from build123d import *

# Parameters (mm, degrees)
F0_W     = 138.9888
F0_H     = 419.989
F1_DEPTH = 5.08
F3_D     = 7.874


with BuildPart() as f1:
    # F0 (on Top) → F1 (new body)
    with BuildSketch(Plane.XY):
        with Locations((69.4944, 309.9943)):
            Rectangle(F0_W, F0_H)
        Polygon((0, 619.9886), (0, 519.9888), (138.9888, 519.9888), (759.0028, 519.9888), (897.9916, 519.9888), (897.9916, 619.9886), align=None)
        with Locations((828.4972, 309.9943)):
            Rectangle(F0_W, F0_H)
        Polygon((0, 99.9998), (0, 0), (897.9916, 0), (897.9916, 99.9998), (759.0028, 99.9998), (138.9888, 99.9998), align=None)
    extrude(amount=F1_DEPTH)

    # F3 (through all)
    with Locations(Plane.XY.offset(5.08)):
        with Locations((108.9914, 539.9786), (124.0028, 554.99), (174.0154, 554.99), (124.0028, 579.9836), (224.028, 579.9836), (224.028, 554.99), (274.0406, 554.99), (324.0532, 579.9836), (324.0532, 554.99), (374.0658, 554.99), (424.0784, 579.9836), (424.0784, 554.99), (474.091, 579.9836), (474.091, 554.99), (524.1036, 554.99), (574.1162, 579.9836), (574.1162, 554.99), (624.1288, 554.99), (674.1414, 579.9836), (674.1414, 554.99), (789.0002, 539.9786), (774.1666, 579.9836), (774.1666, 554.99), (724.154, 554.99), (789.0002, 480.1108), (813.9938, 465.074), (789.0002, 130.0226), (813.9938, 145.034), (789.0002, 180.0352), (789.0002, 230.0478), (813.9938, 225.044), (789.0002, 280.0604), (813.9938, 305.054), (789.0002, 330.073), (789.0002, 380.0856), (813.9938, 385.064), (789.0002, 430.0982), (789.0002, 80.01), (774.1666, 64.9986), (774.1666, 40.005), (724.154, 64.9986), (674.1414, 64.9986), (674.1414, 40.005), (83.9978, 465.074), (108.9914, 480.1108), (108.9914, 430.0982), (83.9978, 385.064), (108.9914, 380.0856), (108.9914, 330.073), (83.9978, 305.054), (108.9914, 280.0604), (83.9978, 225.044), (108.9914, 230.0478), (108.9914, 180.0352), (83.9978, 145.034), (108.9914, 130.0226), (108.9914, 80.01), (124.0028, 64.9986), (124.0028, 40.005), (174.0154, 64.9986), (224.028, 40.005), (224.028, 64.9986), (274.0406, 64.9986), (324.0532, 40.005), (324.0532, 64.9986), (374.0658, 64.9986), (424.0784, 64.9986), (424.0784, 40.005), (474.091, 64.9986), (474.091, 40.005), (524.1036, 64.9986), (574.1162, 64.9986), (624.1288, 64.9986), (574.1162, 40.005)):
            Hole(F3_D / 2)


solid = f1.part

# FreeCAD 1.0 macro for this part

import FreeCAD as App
import Part
import Sketcher
Q = App.Units.Quantity

doc = App.newDocument("Part")
body = doc.addObject("PartDesign::Body", "Body")

# Sketch on XY plane
sketch1 = body.newObject("Sketcher::SketchObject", "Sketch")
sketch1.AttachmentSupport = (doc.getObject("XY_Plane"), [""])
sketch1.MapMode = "FlatFace"
sketch1.addGeometry([
    Part.LineSegment(App.Vector(898, 620, 0), App.Vector(0, 620, 0)),  # 0
    Part.LineSegment(App.Vector(0, 620, 0), App.Vector(0, 0, 0)),  # 1
    Part.LineSegment(App.Vector(0, 0, 0), App.Vector(898, 0, 0)),  # 2
    Part.LineSegment(App.Vector(898, 0, 0), App.Vector(898, 620, 0)),  # 3
    Part.LineSegment(App.Vector(139, 100, 0), App.Vector(139, 520, 0)),  # 4
    Part.LineSegment(App.Vector(139, 520, 0), App.Vector(759, 520, 0)),  # 5
    Part.LineSegment(App.Vector(759, 520, 0), App.Vector(759, 100, 0)),  # 6
    Part.LineSegment(App.Vector(759, 100, 0), App.Vector(139, 100, 0)),  # 7
], False)
sketch1.addConstraint([
    Sketcher.Constraint("Coincident", 0, 2, 1, 1),
    Sketcher.Constraint("Coincident", 1, 2, 2, 1),
    Sketcher.Constraint("Coincident", 2, 2, 3, 1),
    Sketcher.Constraint("Coincident", 3, 2, 0, 1),
    Sketcher.Constraint("Coincident", 4, 2, 5, 1),
    Sketcher.Constraint("Coincident", 5, 2, 6, 1),
    Sketcher.Constraint("Coincident", 6, 2, 7, 1),
    Sketcher.Constraint("Coincident", 7, 2, 4, 1),
    Sketcher.Constraint("Horizontal", 0),
    Sketcher.Constraint("Vertical", 1),
    Sketcher.Constraint("Horizontal", 2),
    Sketcher.Constraint("Vertical", 3),
    Sketcher.Constraint("Vertical", 4),
    Sketcher.Constraint("Horizontal", 5),
    Sketcher.Constraint("Vertical", 6),
    Sketcher.Constraint("Horizontal", 7),
    Sketcher.Constraint("Coincident", 1, 2, -1, 1),
    Sketcher.Constraint("DistanceX", 5, 1, 5, 2, Q("24.41 in")),
    Sketcher.Constraint("DistanceX", 0, 2, 0, 1, Q("35.354 in")),
    Sketcher.Constraint("DistanceY", 1, 2, 1, 1, Q("24.409 in")),
    Sketcher.Constraint("DistanceY", 4, 1, 4, 2, Q("16.535 in")),
    Sketcher.Constraint("DistanceX", -1, 1, 4, 2, Q("5.472 in")),
    Sketcher.Constraint("DistanceY", -1, 1, 4, 2, Q("20.472 in")),
])
pad1 = body.newObject("PartDesign::Pad", "Pad")
pad1.Profile = sketch1
pad1.Length = Q("0.2 in")

# Sketch on XY plane
sketch2 = body.newObject("Sketcher::SketchObject", "Sketch001")
sketch2.AttachmentSupport = (doc.getObject("XY_Plane"), [""])
sketch2.MapMode = "FlatFace"
sketch2.AttachmentOffset = App.Placement(App.Vector(0, 0, 0.2 * 25.4), App.Rotation())
sketch2.addGeometry([
    Part.Circle(App.Vector(109, 540, 0), App.Vector(0, 0, 1), 3.9),  # 0
    Part.Circle(App.Vector(124, 555, 0), App.Vector(0, 0, 1), 3.9),  # 1
    Part.Circle(App.Vector(174, 555, 0), App.Vector(0, 0, 1), 3.9),  # 2
    Part.Circle(App.Vector(124, 580, 0), App.Vector(0, 0, 1), 3.9),  # 3
    Part.Circle(App.Vector(224, 580, 0), App.Vector(0, 0, 1), 3.9),  # 4
    Part.Circle(App.Vector(224, 555, 0), App.Vector(0, 0, 1), 3.9),  # 5
    Part.Circle(App.Vector(274, 555, 0), App.Vector(0, 0, 1), 3.9),  # 6
    Part.Circle(App.Vector(324.1, 580, 0), App.Vector(0, 0, 1), 3.9),  # 7
    Part.Circle(App.Vector(324.1, 555, 0), App.Vector(0, 0, 1), 3.9),  # 8
    Part.Circle(App.Vector(374.1, 555, 0), App.Vector(0, 0, 1), 3.9),  # 9
    Part.Circle(App.Vector(424.1, 580, 0), App.Vector(0, 0, 1), 3.9),  # 10
    Part.Circle(App.Vector(424.1, 555, 0), App.Vector(0, 0, 1), 3.9),  # 11
    Part.Circle(App.Vector(474.1, 580, 0), App.Vector(0, 0, 1), 3.9),  # 12
    Part.Circle(App.Vector(474.1, 555, 0), App.Vector(0, 0, 1), 3.9),  # 13
    Part.Circle(App.Vector(524.1, 555, 0), App.Vector(0, 0, 1), 3.9),  # 14
    Part.Circle(App.Vector(574.1, 580, 0), App.Vector(0, 0, 1), 3.9),  # 15
    Part.Circle(App.Vector(574.1, 555, 0), App.Vector(0, 0, 1), 3.9),  # 16
    Part.Circle(App.Vector(624.1, 555, 0), App.Vector(0, 0, 1), 3.9),  # 17
    Part.Circle(App.Vector(674.1, 580, 0), App.Vector(0, 0, 1), 3.9),  # 18
    Part.Circle(App.Vector(674.1, 555, 0), App.Vector(0, 0, 1), 3.9),  # 19
    Part.Circle(App.Vector(789, 540, 0), App.Vector(0, 0, 1), 3.9),  # 20
    Part.Circle(App.Vector(774.2, 580, 0), App.Vector(0, 0, 1), 3.9),  # 21
    Part.Circle(App.Vector(774.2, 555, 0), App.Vector(0, 0, 1), 3.9),  # 22
    Part.Circle(App.Vector(724.2, 555, 0), App.Vector(0, 0, 1), 3.9),  # 23
    Part.Circle(App.Vector(789, 480.1, 0), App.Vector(0, 0, 1), 3.9),  # 24
    Part.Circle(App.Vector(814, 465.1, 0), App.Vector(0, 0, 1), 3.9),  # 25
    Part.Circle(App.Vector(789, 130, 0), App.Vector(0, 0, 1), 3.9),  # 26
    Part.Circle(App.Vector(814, 145, 0), App.Vector(0, 0, 1), 3.9),  # 27
    Part.Circle(App.Vector(789, 180, 0), App.Vector(0, 0, 1), 3.9),  # 28
    Part.Circle(App.Vector(789, 230, 0), App.Vector(0, 0, 1), 3.9),  # 29
    Part.Circle(App.Vector(814, 225, 0), App.Vector(0, 0, 1), 3.9),  # 30
    Part.Circle(App.Vector(789, 280.1, 0), App.Vector(0, 0, 1), 3.9),  # 31
    Part.Circle(App.Vector(814, 305.1, 0), App.Vector(0, 0, 1), 3.9),  # 32
    Part.Circle(App.Vector(789, 330.1, 0), App.Vector(0, 0, 1), 3.9),  # 33
    Part.Circle(App.Vector(789, 380.1, 0), App.Vector(0, 0, 1), 3.9),  # 34
    Part.Circle(App.Vector(814, 385.1, 0), App.Vector(0, 0, 1), 3.9),  # 35
    Part.Circle(App.Vector(789, 430.1, 0), App.Vector(0, 0, 1), 3.9),  # 36
    Part.Circle(App.Vector(789, 80, 0), App.Vector(0, 0, 1), 3.9),  # 37
    Part.Circle(App.Vector(774.2, 65, 0), App.Vector(0, 0, 1), 3.9),  # 38
    Part.Circle(App.Vector(774.2, 40, 0), App.Vector(0, 0, 1), 3.9),  # 39
    Part.Circle(App.Vector(724.2, 65, 0), App.Vector(0, 0, 1), 3.9),  # 40
    Part.Circle(App.Vector(674.1, 65, 0), App.Vector(0, 0, 1), 3.9),  # 41
    Part.Circle(App.Vector(674.1, 40, 0), App.Vector(0, 0, 1), 3.9),  # 42
    Part.Circle(App.Vector(84, 465.1, 0), App.Vector(0, 0, 1), 3.9),  # 43
    Part.Circle(App.Vector(109, 480.1, 0), App.Vector(0, 0, 1), 3.9),  # 44
    Part.Circle(App.Vector(109, 430.1, 0), App.Vector(0, 0, 1), 3.9),  # 45
    Part.Circle(App.Vector(84, 385.1, 0), App.Vector(0, 0, 1), 3.9),  # 46
    Part.Circle(App.Vector(109, 380.1, 0), App.Vector(0, 0, 1), 3.9),  # 47
    Part.Circle(App.Vector(109, 330.1, 0), App.Vector(0, 0, 1), 3.9),  # 48
    Part.Circle(App.Vector(84, 305.1, 0), App.Vector(0, 0, 1), 3.9),  # 49
    Part.Circle(App.Vector(109, 280.1, 0), App.Vector(0, 0, 1), 3.9),  # 50
    Part.Circle(App.Vector(84, 225, 0), App.Vector(0, 0, 1), 3.9),  # 51
    Part.Circle(App.Vector(109, 230, 0), App.Vector(0, 0, 1), 3.9),  # 52
    Part.Circle(App.Vector(109, 180, 0), App.Vector(0, 0, 1), 3.9),  # 53
    Part.Circle(App.Vector(84, 145, 0), App.Vector(0, 0, 1), 3.9),  # 54
    Part.Circle(App.Vector(109, 130, 0), App.Vector(0, 0, 1), 3.9),  # 55
    Part.Circle(App.Vector(109, 80, 0), App.Vector(0, 0, 1), 3.9),  # 56
    Part.Circle(App.Vector(124, 65, 0), App.Vector(0, 0, 1), 3.9),  # 57
    Part.Circle(App.Vector(124, 40, 0), App.Vector(0, 0, 1), 3.9),  # 58
    Part.Circle(App.Vector(174, 65, 0), App.Vector(0, 0, 1), 3.9),  # 59
    Part.Circle(App.Vector(224, 40, 0), App.Vector(0, 0, 1), 3.9),  # 60
    Part.Circle(App.Vector(224, 65, 0), App.Vector(0, 0, 1), 3.9),  # 61
    Part.Circle(App.Vector(274, 65, 0), App.Vector(0, 0, 1), 3.9),  # 62
    Part.Circle(App.Vector(324.1, 40, 0), App.Vector(0, 0, 1), 3.9),  # 63
    Part.Circle(App.Vector(324.1, 65, 0), App.Vector(0, 0, 1), 3.9),  # 64
    Part.Circle(App.Vector(374.1, 65, 0), App.Vector(0, 0, 1), 3.9),  # 65
    Part.Circle(App.Vector(424.1, 65, 0), App.Vector(0, 0, 1), 3.9),  # 66
    Part.Circle(App.Vector(424.1, 40, 0), App.Vector(0, 0, 1), 3.9),  # 67
    Part.Circle(App.Vector(474.1, 65, 0), App.Vector(0, 0, 1), 3.9),  # 68
    Part.Circle(App.Vector(474.1, 40, 0), App.Vector(0, 0, 1), 3.9),  # 69
    Part.Circle(App.Vector(524.1, 65, 0), App.Vector(0, 0, 1), 3.9),  # 70
    Part.Circle(App.Vector(574.1, 65, 0), App.Vector(0, 0, 1), 3.9),  # 71
    Part.Circle(App.Vector(624.1, 65, 0), App.Vector(0, 0, 1), 3.9),  # 72
    Part.Circle(App.Vector(574.1, 40, 0), App.Vector(0, 0, 1), 3.9),  # 73
], False)
sketch2.addConstraint([
    Sketcher.Constraint("Equal", 0, 1),
    Sketcher.Constraint("Equal", 1, 2),
    Sketcher.Constraint("Equal", 2, 3),
    Sketcher.Constraint("Equal", 3, 4),
    Sketcher.Constraint("Equal", 4, 5),
    Sketcher.Constraint("Equal", 5, 6),
    Sketcher.Constraint("Equal", 6, 7),
    Sketcher.Constraint("Equal", 7, 8),
    Sketcher.Constraint("Equal", 8, 9),
    Sketcher.Constraint("Equal", 9, 10),
    Sketcher.Constraint("Equal", 10, 11),
    Sketcher.Constraint("Equal", 11, 12),
    Sketcher.Constraint("Equal", 12, 13),
    Sketcher.Constraint("Equal", 13, 14),
    Sketcher.Constraint("Equal", 14, 15),
    Sketcher.Constraint("Equal", 15, 16),
    Sketcher.Constraint("Equal", 16, 17),
    Sketcher.Constraint("Equal", 17, 18),
    Sketcher.Constraint("Equal", 18, 19),
    Sketcher.Constraint("Equal", 19, 20),
    Sketcher.Constraint("Equal", 20, 21),
    Sketcher.Constraint("Equal", 21, 22),
    Sketcher.Constraint("Equal", 22, 23),
    Sketcher.Constraint("Equal", 23, 24),
    Sketcher.Constraint("Equal", 24, 25),
    Sketcher.Constraint("Equal", 25, 26),
    Sketcher.Constraint("Equal", 26, 27),
    Sketcher.Constraint("Equal", 27, 28),
    Sketcher.Constraint("Equal", 28, 29),
    Sketcher.Constraint("Equal", 29, 30),
    Sketcher.Constraint("Equal", 30, 31),
    Sketcher.Constraint("Equal", 31, 32),
    Sketcher.Constraint("Equal", 32, 33),
    Sketcher.Constraint("Equal", 33, 34),
    Sketcher.Constraint("Equal", 34, 35),
    Sketcher.Constraint("Equal", 35, 36),
    Sketcher.Constraint("Equal", 36, 37),
    Sketcher.Constraint("Equal", 37, 38),
    Sketcher.Constraint("Equal", 38, 39),
    Sketcher.Constraint("Equal", 39, 40),
    Sketcher.Constraint("Equal", 40, 41),
    Sketcher.Constraint("Equal", 41, 42),
    Sketcher.Constraint("Equal", 42, 43),
    Sketcher.Constraint("Equal", 43, 44),
    Sketcher.Constraint("Equal", 44, 45),
    Sketcher.Constraint("Equal", 45, 46),
    Sketcher.Constraint("Equal", 46, 47),
    Sketcher.Constraint("Equal", 47, 48),
    Sketcher.Constraint("Equal", 48, 49),
    Sketcher.Constraint("Equal", 49, 50),
    Sketcher.Constraint("Equal", 50, 51),
    Sketcher.Constraint("Equal", 51, 52),
    Sketcher.Constraint("Equal", 52, 53),
    Sketcher.Constraint("Equal", 53, 54),
    Sketcher.Constraint("Equal", 54, 55),
    Sketcher.Constraint("Equal", 55, 56),
    Sketcher.Constraint("Equal", 56, 57),
    Sketcher.Constraint("Equal", 57, 58),
    Sketcher.Constraint("Equal", 58, 59),
    Sketcher.Constraint("Equal", 59, 60),
    Sketcher.Constraint("Equal", 60, 61),
    Sketcher.Constraint("Equal", 61, 62),
    Sketcher.Constraint("Equal", 62, 63),
    Sketcher.Constraint("Equal", 63, 64),
    Sketcher.Constraint("Equal", 64, 65),
    Sketcher.Constraint("Equal", 65, 66),
    Sketcher.Constraint("Equal", 66, 67),
    Sketcher.Constraint("Equal", 67, 68),
    Sketcher.Constraint("Equal", 68, 69),
    Sketcher.Constraint("Equal", 69, 70),
    Sketcher.Constraint("Equal", 70, 71),
    Sketcher.Constraint("Equal", 71, 72),
    Sketcher.Constraint("Equal", 72, 73),
    Sketcher.Constraint("Horizontal", 1, 3, 2, 3),
    Sketcher.Constraint("Horizontal", 3, 3, 4, 3),
    Sketcher.Constraint("Horizontal", 2, 3, 5, 3),
    Sketcher.Constraint("Horizontal", 5, 3, 6, 3),
    Sketcher.Constraint("Horizontal", 4, 3, 7, 3),
    Sketcher.Constraint("Horizontal", 6, 3, 8, 3),
    Sketcher.Constraint("Horizontal", 8, 3, 9, 3),
    Sketcher.Constraint("Horizontal", 7, 3, 10, 3),
    Sketcher.Constraint("Horizontal", 9, 3, 11, 3),
    Sketcher.Constraint("Horizontal", 10, 3, 12, 3),
    Sketcher.Constraint("Horizontal", 11, 3, 13, 3),
    Sketcher.Constraint("Horizontal", 13, 3, 14, 3),
    Sketcher.Constraint("Horizontal", 12, 3, 15, 3),
    Sketcher.Constraint("Horizontal", 14, 3, 16, 3),
    Sketcher.Constraint("Horizontal", 16, 3, 17, 3),
    Sketcher.Constraint("Horizontal", 15, 3, 18, 3),
    Sketcher.Constraint("Horizontal", 17, 3, 19, 3),
    Sketcher.Constraint("Horizontal", 0, 3, 20, 3),
    Sketcher.Constraint("Horizontal", 18, 3, 21, 3),
    Sketcher.Constraint("Horizontal", 19, 3, 22, 3),
    Sketcher.Constraint("Horizontal", 22, 3, 23, 3),
    Sketcher.Constraint("Horizontal", 38, 3, 40, 3),
    Sketcher.Constraint("Horizontal", 40, 3, 41, 3),
    Sketcher.Constraint("Horizontal", 39, 3, 42, 3),
    Sketcher.Constraint("Horizontal", 25, 3, 43, 3),
    Sketcher.Constraint("Horizontal", 24, 3, 44, 3),
    Sketcher.Constraint("Horizontal", 36, 3, 45, 3),
    Sketcher.Constraint("Horizontal", 35, 3, 46, 3),
    Sketcher.Constraint("Horizontal", 34, 3, 47, 3),
    Sketcher.Constraint("Horizontal", 33, 3, 48, 3),
    Sketcher.Constraint("Horizontal", 32, 3, 49, 3),
    Sketcher.Constraint("Horizontal", 31, 3, 50, 3),
    Sketcher.Constraint("Horizontal", 30, 3, 51, 3),
    Sketcher.Constraint("Horizontal", 29, 3, 52, 3),
    Sketcher.Constraint("Horizontal", 28, 3, 53, 3),
    Sketcher.Constraint("Horizontal", 27, 3, 54, 3),
    Sketcher.Constraint("Horizontal", 26, 3, 55, 3),
    Sketcher.Constraint("Horizontal", 37, 3, 56, 3),
    Sketcher.Constraint("Horizontal", 41, 3, 57, 3),
    Sketcher.Constraint("Horizontal", 42, 3, 58, 3),
    Sketcher.Constraint("Horizontal", 57, 3, 59, 3),
    Sketcher.Constraint("Horizontal", 58, 3, 60, 3),
    Sketcher.Constraint("Horizontal", 59, 3, 61, 3),
    Sketcher.Constraint("Horizontal", 61, 3, 62, 3),
    Sketcher.Constraint("Horizontal", 60, 3, 63, 3),
    Sketcher.Constraint("Horizontal", 62, 3, 64, 3),
    Sketcher.Constraint("Horizontal", 64, 3, 65, 3),
    Sketcher.Constraint("Horizontal", 65, 3, 66, 3),
    Sketcher.Constraint("Horizontal", 63, 3, 67, 3),
    Sketcher.Constraint("Horizontal", 66, 3, 68, 3),
    Sketcher.Constraint("Horizontal", 67, 3, 69, 3),
    Sketcher.Constraint("Horizontal", 68, 3, 70, 3),
    Sketcher.Constraint("Horizontal", 70, 3, 71, 3),
    Sketcher.Constraint("Horizontal", 71, 3, 72, 3),
    Sketcher.Constraint("Horizontal", 69, 3, 73, 3),
    Sketcher.Constraint("Vertical", 1, 3, 3, 3),
    Sketcher.Constraint("Vertical", 4, 3, 5, 3),
    Sketcher.Constraint("Vertical", 7, 3, 8, 3),
    Sketcher.Constraint("Vertical", 10, 3, 11, 3),
    Sketcher.Constraint("Vertical", 12, 3, 13, 3),
    Sketcher.Constraint("Vertical", 15, 3, 16, 3),
    Sketcher.Constraint("Vertical", 18, 3, 19, 3),
    Sketcher.Constraint("Vertical", 21, 3, 22, 3),
    Sketcher.Constraint("Vertical", 20, 3, 24, 3),
    Sketcher.Constraint("Vertical", 24, 3, 26, 3),
    Sketcher.Constraint("Vertical", 25, 3, 27, 3),
    Sketcher.Constraint("Vertical", 26, 3, 28, 3),
    Sketcher.Constraint("Vertical", 28, 3, 29, 3),
    Sketcher.Constraint("Vertical", 27, 3, 30, 3),
    Sketcher.Constraint("Vertical", 29, 3, 31, 3),
    Sketcher.Constraint("Vertical", 30, 3, 32, 3),
    Sketcher.Constraint("Vertical", 31, 3, 33, 3),
    Sketcher.Constraint("Vertical", 33, 3, 34, 3),
    Sketcher.Constraint("Vertical", 32, 3, 35, 3),
    Sketcher.Constraint("Vertical", 34, 3, 36, 3),
    Sketcher.Constraint("Vertical", 36, 3, 37, 3),
    Sketcher.Constraint("Vertical", 22, 3, 38, 3),
    Sketcher.Constraint("Vertical", 38, 3, 39, 3),
    Sketcher.Constraint("Vertical", 23, 3, 40, 3),
    Sketcher.Constraint("Vertical", 19, 3, 41, 3),
    Sketcher.Constraint("Vertical", 41, 3, 42, 3),
    Sketcher.Constraint("Vertical", 0, 3, 44, 3),
    Sketcher.Constraint("Vertical", 44, 3, 45, 3),
    Sketcher.Constraint("Vertical", 43, 3, 46, 3),
    Sketcher.Constraint("Vertical", 45, 3, 47, 3),
    Sketcher.Constraint("Vertical", 47, 3, 48, 3),
    Sketcher.Constraint("Vertical", 46, 3, 49, 3),
    Sketcher.Constraint("Vertical", 48, 3, 50, 3),
    Sketcher.Constraint("Vertical", 49, 3, 51, 3),
    Sketcher.Constraint("Vertical", 50, 3, 52, 3),
    Sketcher.Constraint("Vertical", 52, 3, 53, 3),
    Sketcher.Constraint("Vertical", 51, 3, 54, 3),
    Sketcher.Constraint("Vertical", 53, 3, 55, 3),
    Sketcher.Constraint("Vertical", 55, 3, 56, 3),
    Sketcher.Constraint("Vertical", 3, 3, 57, 3),
    Sketcher.Constraint("Vertical", 57, 3, 58, 3),
    Sketcher.Constraint("Vertical", 2, 3, 59, 3),
    Sketcher.Constraint("Vertical", 5, 3, 60, 3),
    Sketcher.Constraint("Vertical", 60, 3, 61, 3),
    Sketcher.Constraint("Vertical", 6, 3, 62, 3),
    Sketcher.Constraint("Vertical", 8, 3, 63, 3),
    Sketcher.Constraint("Vertical", 63, 3, 64, 3),
    Sketcher.Constraint("Vertical", 9, 3, 65, 3),
    Sketcher.Constraint("Vertical", 11, 3, 66, 3),
    Sketcher.Constraint("Vertical", 66, 3, 67, 3),
    Sketcher.Constraint("Vertical", 13, 3, 68, 3),
    Sketcher.Constraint("Vertical", 68, 3, 69, 3),
    Sketcher.Constraint("Vertical", 14, 3, 70, 3),
    Sketcher.Constraint("Vertical", 16, 3, 71, 3),
    Sketcher.Constraint("Vertical", 17, 3, 72, 3),
    Sketcher.Constraint("Vertical", 71, 3, 73, 3),
    Sketcher.Constraint("Diameter", 0, Q("0.31 in")),
    Sketcher.Constraint("DistanceY", -1, 1, 1, 3, Q("21.85 in")),
    Sketcher.Constraint("DistanceX", -1, 1, 4, 3, Q("8.82 in")),
    Sketcher.Constraint("DistanceX", -1, 1, 23, 3, Q("28.51 in")),
    Sketcher.Constraint("DistanceY", -1, 1, 25, 3, Q("18.31 in")),
    Sketcher.Constraint("DistanceY", -1, 1, 27, 3, Q("5.71 in")),
    Sketcher.Constraint("DistanceY", -1, 1, 30, 3, Q("8.86 in")),
    Sketcher.Constraint("DistanceY", -1, 1, 32, 3, Q("12.01 in")),
    Sketcher.Constraint("DistanceY", -1, 1, 35, 3, Q("15.16 in")),
    Sketcher.Constraint("DistanceY", -1, 1, 37, 3, Q("3.15 in")),
    Sketcher.Constraint("DistanceX", -1, 1, 0, 3, Q("4.291 in")),
    Sketcher.Constraint("DistanceY", -1, 1, 0, 3, Q("21.259 in")),
    Sketcher.Constraint("DistanceX", -1, 1, 1, 3, Q("4.882 in")),
    Sketcher.Constraint("DistanceX", -1, 1, 2, 3, Q("6.851 in")),
    Sketcher.Constraint("DistanceY", -1, 1, 3, 3, Q("22.834 in")),
    Sketcher.Constraint("DistanceX", -1, 1, 6, 3, Q("10.789 in")),
    Sketcher.Constraint("DistanceX", -1, 1, 7, 3, Q("12.758 in")),
    Sketcher.Constraint("DistanceX", -1, 1, 9, 3, Q("14.727 in")),
    Sketcher.Constraint("DistanceX", -1, 1, 10, 3, Q("16.696 in")),
    Sketcher.Constraint("DistanceX", -1, 1, 12, 3, Q("18.665 in")),
    Sketcher.Constraint("DistanceX", -1, 1, 14, 3, Q("20.634 in")),
    Sketcher.Constraint("DistanceX", -1, 1, 15, 3, Q("22.603 in")),
    Sketcher.Constraint("DistanceX", -1, 1, 17, 3, Q("24.572 in")),
    Sketcher.Constraint("DistanceX", -1, 1, 18, 3, Q("26.541 in")),
    Sketcher.Constraint("DistanceX", -1, 1, 20, 3, Q("31.063 in")),
    Sketcher.Constraint("DistanceX", -1, 1, 21, 3, Q("30.479 in")),
    Sketcher.Constraint("DistanceY", -1, 1, 24, 3, Q("18.902 in")),
    Sketcher.Constraint("DistanceX", -1, 1, 25, 3, Q("32.047 in")),
    Sketcher.Constraint("DistanceY", -1, 1, 26, 3, Q("5.119 in")),
    Sketcher.Constraint("DistanceY", -1, 1, 28, 3, Q("7.088 in")),
    Sketcher.Constraint("DistanceY", -1, 1, 29, 3, Q("9.057 in")),
    Sketcher.Constraint("DistanceY", -1, 1, 31, 3, Q("11.026 in")),
    Sketcher.Constraint("DistanceY", -1, 1, 33, 3, Q("12.995 in")),
    Sketcher.Constraint("DistanceY", -1, 1, 34, 3, Q("14.964 in")),
    Sketcher.Constraint("DistanceY", -1, 1, 36, 3, Q("16.933 in")),
    Sketcher.Constraint("DistanceY", -1, 1, 38, 3, Q("2.559 in")),
    Sketcher.Constraint("DistanceY", -1, 1, 39, 3, Q("1.575 in")),
    Sketcher.Constraint("DistanceX", -1, 1, 43, 3, Q("3.307 in")),
])
doc.recompute()
hole = body.newObject("PartDesign::Hole", "Hole")
hole.Profile = sketch2
hole.ThreadType = "None"
hole.Diameter = Q("0.31 in")
hole.DepthType = "ThroughAll"

doc.recompute()
